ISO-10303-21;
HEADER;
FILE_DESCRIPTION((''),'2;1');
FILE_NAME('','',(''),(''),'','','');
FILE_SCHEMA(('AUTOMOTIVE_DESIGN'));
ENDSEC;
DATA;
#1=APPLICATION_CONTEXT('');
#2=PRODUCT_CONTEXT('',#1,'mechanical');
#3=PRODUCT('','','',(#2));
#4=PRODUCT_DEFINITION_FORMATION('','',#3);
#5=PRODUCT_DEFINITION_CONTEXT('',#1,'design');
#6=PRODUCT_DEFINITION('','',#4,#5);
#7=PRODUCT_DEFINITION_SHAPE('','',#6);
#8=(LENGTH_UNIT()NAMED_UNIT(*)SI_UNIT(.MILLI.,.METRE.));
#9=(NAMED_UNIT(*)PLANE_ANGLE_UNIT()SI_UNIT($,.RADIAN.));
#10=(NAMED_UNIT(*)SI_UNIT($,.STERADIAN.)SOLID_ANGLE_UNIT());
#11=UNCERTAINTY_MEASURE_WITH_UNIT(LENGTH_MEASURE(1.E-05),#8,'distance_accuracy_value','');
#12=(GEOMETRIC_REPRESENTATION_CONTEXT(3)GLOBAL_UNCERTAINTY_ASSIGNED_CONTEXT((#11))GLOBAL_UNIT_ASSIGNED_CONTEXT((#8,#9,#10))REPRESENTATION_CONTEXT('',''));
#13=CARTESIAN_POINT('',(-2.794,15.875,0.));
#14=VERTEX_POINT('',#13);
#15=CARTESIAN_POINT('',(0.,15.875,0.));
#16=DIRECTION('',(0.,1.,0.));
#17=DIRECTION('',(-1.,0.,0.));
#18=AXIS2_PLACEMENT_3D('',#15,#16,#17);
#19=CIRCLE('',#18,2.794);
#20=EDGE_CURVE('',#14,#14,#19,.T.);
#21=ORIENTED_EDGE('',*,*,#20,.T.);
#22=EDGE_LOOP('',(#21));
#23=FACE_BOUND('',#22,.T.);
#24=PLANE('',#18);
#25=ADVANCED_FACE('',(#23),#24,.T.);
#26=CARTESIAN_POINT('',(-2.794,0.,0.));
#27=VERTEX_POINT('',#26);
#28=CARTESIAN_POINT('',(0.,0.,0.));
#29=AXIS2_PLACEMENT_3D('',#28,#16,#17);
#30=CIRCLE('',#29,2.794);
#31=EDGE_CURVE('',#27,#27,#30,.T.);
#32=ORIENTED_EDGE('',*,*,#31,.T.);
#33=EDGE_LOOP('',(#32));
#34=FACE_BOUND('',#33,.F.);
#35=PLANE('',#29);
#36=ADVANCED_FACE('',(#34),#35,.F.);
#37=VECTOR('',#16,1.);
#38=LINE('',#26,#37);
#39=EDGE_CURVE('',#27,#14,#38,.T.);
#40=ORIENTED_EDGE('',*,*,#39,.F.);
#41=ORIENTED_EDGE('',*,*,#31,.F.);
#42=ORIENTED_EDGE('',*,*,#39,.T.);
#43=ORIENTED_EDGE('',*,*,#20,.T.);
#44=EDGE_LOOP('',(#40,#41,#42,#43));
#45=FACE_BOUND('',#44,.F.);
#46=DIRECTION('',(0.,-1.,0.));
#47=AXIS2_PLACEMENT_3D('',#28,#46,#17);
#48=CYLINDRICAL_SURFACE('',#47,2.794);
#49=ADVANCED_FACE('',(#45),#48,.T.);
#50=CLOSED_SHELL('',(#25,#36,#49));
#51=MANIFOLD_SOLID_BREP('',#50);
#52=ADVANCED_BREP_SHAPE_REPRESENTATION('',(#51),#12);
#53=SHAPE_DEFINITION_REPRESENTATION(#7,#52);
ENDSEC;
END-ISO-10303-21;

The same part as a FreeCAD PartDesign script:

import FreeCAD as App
import Part
import Sketcher

V = App.Vector
Q = App.Units.Quantity

doc = App.newDocument("Part")
body = doc.addObject("PartDesign::Body", "Body")

sketch1 = body.newObject("Sketcher::SketchObject", "Sketch")
sketch1.AttachmentSupport = (doc.getObject("XZ_Plane"), [""])
sketch1.MapMode = "FlatFace"
sketch1.addGeometry(Part.Circle(V(0, 0, 0), V(0, 0, 1), 2.8), False)
sketch1.addConstraint([
    Sketcher.Constraint("Coincident", 0, 3, -1, 1),
    Sketcher.Constraint("Diameter", 0, Q("0.22 in")),
])
pad1 = body.newObject("PartDesign::Pad", "Pad")
pad1.Profile = sketch1
pad1.Length = Q("0.625 in")
pad1.Reversed = True

doc.recompute()
